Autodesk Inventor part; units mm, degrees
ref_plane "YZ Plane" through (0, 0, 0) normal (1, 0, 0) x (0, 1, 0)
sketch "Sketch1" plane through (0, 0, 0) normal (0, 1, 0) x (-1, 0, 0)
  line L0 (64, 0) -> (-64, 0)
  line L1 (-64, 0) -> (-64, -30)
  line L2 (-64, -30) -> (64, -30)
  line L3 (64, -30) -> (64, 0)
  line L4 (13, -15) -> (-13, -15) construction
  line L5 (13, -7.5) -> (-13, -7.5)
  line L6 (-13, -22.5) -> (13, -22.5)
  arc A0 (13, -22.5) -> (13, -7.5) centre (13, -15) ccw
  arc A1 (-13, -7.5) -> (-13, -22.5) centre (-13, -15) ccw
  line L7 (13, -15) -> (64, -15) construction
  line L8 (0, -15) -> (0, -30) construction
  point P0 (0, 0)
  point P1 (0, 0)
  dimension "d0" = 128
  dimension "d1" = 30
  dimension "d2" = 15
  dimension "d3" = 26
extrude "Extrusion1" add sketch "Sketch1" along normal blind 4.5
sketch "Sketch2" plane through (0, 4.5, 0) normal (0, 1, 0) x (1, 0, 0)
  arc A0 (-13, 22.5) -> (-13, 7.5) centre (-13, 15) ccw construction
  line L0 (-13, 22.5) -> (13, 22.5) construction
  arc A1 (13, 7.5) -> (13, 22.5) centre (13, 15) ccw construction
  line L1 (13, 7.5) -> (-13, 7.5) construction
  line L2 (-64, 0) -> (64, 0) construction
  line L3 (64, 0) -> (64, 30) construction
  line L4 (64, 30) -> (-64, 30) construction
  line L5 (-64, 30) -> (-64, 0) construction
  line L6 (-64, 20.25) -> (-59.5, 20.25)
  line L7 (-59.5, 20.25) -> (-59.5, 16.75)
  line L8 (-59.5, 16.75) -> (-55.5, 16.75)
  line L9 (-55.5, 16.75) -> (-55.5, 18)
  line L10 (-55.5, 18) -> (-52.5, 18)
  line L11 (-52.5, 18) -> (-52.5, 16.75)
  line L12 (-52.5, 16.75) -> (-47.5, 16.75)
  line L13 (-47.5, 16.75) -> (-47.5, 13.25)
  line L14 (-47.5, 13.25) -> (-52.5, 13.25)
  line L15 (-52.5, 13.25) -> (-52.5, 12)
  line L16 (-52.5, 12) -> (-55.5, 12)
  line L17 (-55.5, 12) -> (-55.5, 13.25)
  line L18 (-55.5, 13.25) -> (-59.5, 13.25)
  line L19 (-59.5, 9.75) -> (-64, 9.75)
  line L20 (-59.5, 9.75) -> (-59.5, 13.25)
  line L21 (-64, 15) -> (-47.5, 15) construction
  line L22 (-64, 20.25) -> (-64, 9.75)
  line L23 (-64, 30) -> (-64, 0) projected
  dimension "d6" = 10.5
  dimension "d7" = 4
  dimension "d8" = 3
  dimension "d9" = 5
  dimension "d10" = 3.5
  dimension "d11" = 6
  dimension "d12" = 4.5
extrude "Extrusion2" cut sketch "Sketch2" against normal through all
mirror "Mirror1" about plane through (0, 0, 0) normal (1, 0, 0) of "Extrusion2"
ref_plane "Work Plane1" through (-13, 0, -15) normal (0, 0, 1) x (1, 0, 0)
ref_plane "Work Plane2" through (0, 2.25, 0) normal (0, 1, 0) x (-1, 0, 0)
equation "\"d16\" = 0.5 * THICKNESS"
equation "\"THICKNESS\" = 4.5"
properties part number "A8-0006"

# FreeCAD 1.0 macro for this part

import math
import FreeCAD as App
import Part
import Sketcher

V = App.Vector
Q = App.Units.Quantity

doc = App.newDocument("Part")
body = doc.addObject("PartDesign::Body", "Body")

# Sketch on XZ plane
sketch1 = body.newObject("Sketcher::SketchObject", "Sketch")
sketch1.AttachmentSupport = (doc.getObject("XZ_Plane"), [""])
sketch1.MapMode = "FlatFace"
sketch1.addGeometry(Part.LineSegment(V(-64, -30, 0), V(-64, 0, 0)), False)
sketch1.addGeometry(Part.LineSegment(V(-64, 0, 0), V(64, 0, 0)), False)
sketch1.addGeometry(Part.LineSegment(V(64, 0, 0), V(64, -30, 0)), False)
sketch1.addGeometry(Part.LineSegment(V(64, -30, 0), V(-64, -30, 0)), False)
sketch1.addGeometry(Part.LineSegment(V(13, -8, 0), V(-13, -8, 0)), False)
sketch1.addGeometry(Part.ArcOfCircle(Part.Circle(V(-13, -15, 0), V(0, 0, 1), 8), math.radians(90), math.radians(270)), False)
sketch1.addGeometry(Part.LineSegment(V(-13, -22, 0), V(13, -22, 0)), False)
sketch1.addGeometry(Part.ArcOfCircle(Part.Circle(V(13, -15, 0), V(0, 0, 1), 8), math.radians(-90), math.radians(90)), False)
sketch1.addConstraint(Sketcher.Constraint("Coincident", 0, 2, 1, 1))
sketch1.addConstraint(Sketcher.Constraint("Coincident", 1, 2, 2, 1))
sketch1.addConstraint(Sketcher.Constraint("Coincident", 2, 2, 3, 1))
sketch1.addConstraint(Sketcher.Constraint("Coincident", 3, 2, 0, 1))
sketch1.addConstraint(Sketcher.Constraint("Tangent", 4, 2, 5, 1))
sketch1.addConstraint(Sketcher.Constraint("Tangent", 5, 2, 6, 1))
sketch1.addConstraint(Sketcher.Constraint("Tangent", 6, 2, 7, 1))
sketch1.addConstraint(Sketcher.Constraint("Tangent", 7, 2, 4, 1))
sketch1.addConstraint(Sketcher.Constraint("Vertical", 0))
sketch1.addConstraint(Sketcher.Constraint("Horizontal", 1))
sketch1.addConstraint(Sketcher.Constraint("Vertical", 2))
sketch1.addConstraint(Sketcher.Constraint("Horizontal", 3))
sketch1.addConstraint(Sketcher.Constraint("Horizontal", 4))
sketch1.addConstraint(Sketcher.Constraint("Horizontal", 6))
sketch1.addConstraint(Sketcher.Constraint("Symmetric", 0, 2, 1, 2, -1, 1))
sketch1.addConstraint(Sketcher.Constraint("Radius", 5, Q("7.5 mm")))
sketch1.addConstraint(Sketcher.Constraint("DistanceX", 1, 1, 1, 2, Q("128 mm")))
sketch1.addConstraint(Sketcher.Constraint("DistanceX", 4, 2, 4, 1, Q("26 mm")))
sketch1.addConstraint(Sketcher.Constraint("DistanceY", 0, 1, 0, 2, Q("30 mm")))
sketch1.addConstraint(Sketcher.Constraint("DistanceY", 5, 3, -1, 1, Q("15 mm")))
sketch1.addConstraint(Sketcher.Constraint("DistanceX", 5, 3, -1, 1, Q("13 mm")))
pad1 = body.newObject("PartDesign::Pad", "Pad")
pad1.Profile = sketch1
pad1.Length = 4.5
pad1.Reversed = True

# Sketch on XZ plane
sketch2 = body.newObject("Sketcher::SketchObject", "Sketch001")
sketch2.AttachmentSupport = (doc.getObject("XZ_Plane"), [""])
sketch2.MapMode = "FlatFace"
sketch2.AttachmentOffset = App.Placement(V(0, 0, -4.5), App.Rotation())
sketch2.addGeometry(Part.LineSegment(V(-59.5, -20.2, 0), V(-64, -20.2, 0)), False)
sketch2.addGeometry(Part.LineSegment(V(-64, -20.2, 0), V(-64, -9.8, 0)), False)
sketch2.addGeometry(Part.LineSegment(V(-64, -9.8, 0), V(-59.5, -9.8, 0)), False)
sketch2.addGeometry(Part.LineSegment(V(-59.5, -9.8, 0), V(-59.5, -13.2, 0)), False)
sketch2.addGeometry(Part.LineSegment(V(-59.5, -13.2, 0), V(-55.5, -13.2, 0)), False)
sketch2.addGeometry(Part.LineSegment(V(-55.5, -13.2, 0), V(-55.5, -12, 0)), False)
sketch2.addGeometry(Part.LineSegment(V(-55.5, -12, 0), V(-52.5, -12, 0)), False)
sketch2.addGeometry(Part.LineSegment(V(-52.5, -12, 0), V(-52.5, -13.2, 0)), False)
sketch2.addGeometry(Part.LineSegment(V(-52.5, -13.2, 0), V(-47.5, -13.2, 0)), False)
sketch2.addGeometry(Part.LineSegment(V(-47.5, -13.2, 0), V(-47.5, -16.8, 0)), False)
sketch2.addGeometry(Part.LineSegment(V(-47.5, -16.8, 0), V(-52.5, -16.8, 0)), False)
sketch2.addGeometry(Part.LineSegment(V(-52.5, -16.8, 0), V(-52.5, -18, 0)), False)
sketch2.addGeometry(Part.LineSegment(V(-52.5, -18, 0), V(-55.5, -18, 0)), False)
sketch2.addGeometry(Part.LineSegment(V(-55.5, -18, 0), V(-55.5, -16.8, 0)), False)
sketch2.addGeometry(Part.LineSegment(V(-55.5, -16.8, 0), V(-59.5, -16.8, 0)), False)
sketch2.addGeometry(Part.LineSegment(V(-59.5, -16.8, 0), V(-59.5, -20.2, 0)), False)
sketch2.addConstraint(Sketcher.Constraint("Coincident", 0, 2, 1, 1))
sketch2.addConstraint(Sketcher.Constraint("Coincident", 1, 2, 2, 1))
sketch2.addConstraint(Sketcher.Constraint("Coincident", 2, 2, 3, 1))
sketch2.addConstraint(Sketcher.Constraint("Coincident", 3, 2, 4, 1))
sketch2.addConstraint(Sketcher.Constraint("Coincident", 4, 2, 5, 1))
sketch2.addConstraint(Sketcher.Constraint("Coincident", 5, 2, 6, 1))
sketch2.addConstraint(Sketcher.Constraint("Coincident", 6, 2, 7, 1))
sketch2.addConstraint(Sketcher.Constraint("Coincident", 7, 2, 8, 1))
sketch2.addConstraint(Sketcher.Constraint("Coincident", 8, 2, 9, 1))
sketch2.addConstraint(Sketcher.Constraint("Coincident", 9, 2, 10, 1))
sketch2.addConstraint(Sketcher.Constraint("Coincident", 10, 2, 11, 1))
sketch2.addConstraint(Sketcher.Constraint("Coincident", 11, 2, 12, 1))
sketch2.addConstraint(Sketcher.Constraint("Coincident", 12, 2, 13, 1))
sketch2.addConstraint(Sketcher.Constraint("Coincident", 13, 2, 14, 1))
sketch2.addConstraint(Sketcher.Constraint("Coincident", 14, 2, 15, 1))
sketch2.addConstraint(Sketcher.Constraint("Coincident", 15, 2, 0, 1))
sketch2.addConstraint(Sketcher.Constraint("Horizontal", 0))
sketch2.addConstraint(Sketcher.Constraint("Vertical", 1))
sketch2.addConstraint(Sketcher.Constraint("Horizontal", 2))
sketch2.addConstraint(Sketcher.Constraint("Vertical", 3))
sketch2.addConstraint(Sketcher.Constraint("Horizontal", 4))
sketch2.addConstraint(Sketcher.Constraint("Vertical", 5))
sketch2.addConstraint(Sketcher.Constraint("Horizontal", 6))
sketch2.addConstraint(Sketcher.Constraint("Vertical", 7))
sketch2.addConstraint(Sketcher.Constraint("Horizontal", 8))
sketch2.addConstraint(Sketcher.Constraint("Vertical", 9))
sketch2.addConstraint(Sketcher.Constraint("Horizontal", 10))
sketch2.addConstraint(Sketcher.Constraint("Vertical", 11))
sketch2.addConstraint(Sketcher.Constraint("Horizontal", 12))
sketch2.addConstraint(Sketcher.Constraint("Vertical", 13))
sketch2.addConstraint(Sketcher.Constraint("Horizontal", 14))
sketch2.addConstraint(Sketcher.Constraint("Vertical", 15))
sketch2.addConstraint(Sketcher.Constraint("Horizontal", 4, 2, 7, 2))
sketch2.addConstraint(Sketcher.Constraint("Horizontal", 10, 2, 13, 2))
sketch2.addConstraint(Sketcher.Constraint("Vertical", 7, 2, 10, 2))
sketch2.addConstraint(Sketcher.Constraint("Vertical", 5, 2, 12, 2))
sketch2.addConstraint(Sketcher.Constraint("Vertical", 3, 2, 14, 2))
sketch2.addConstraint(Sketcher.Constraint("Equal", 3, 9))
sketch2.addConstraint(Sketcher.Constraint("Equal", 7, 11))
sketch2.addConstraint(Sketcher.Constraint("Equal", 9, 15))
sketch2.addConstraint(Sketcher.Constraint("DistanceX", 4, 1, 4, 2, Q("4 mm")))
sketch2.addConstraint(Sketcher.Constraint("DistanceX", 6, 1, 6, 2, Q("3 mm")))
sketch2.addConstraint(Sketcher.Constraint("DistanceX", 8, 1, 8, 2, Q("5 mm")))
sketch2.addConstraint(Sketcher.Constraint("DistanceX", 0, 2, 0, 1, Q("4.5 mm")))
sketch2.addConstraint(Sketcher.Constraint("DistanceY", 1, 1, 1, 2, Q("10.5 mm")))
sketch2.addConstraint(Sketcher.Constraint("DistanceY", 11, 2, 6, 2, Q("6 mm")))
sketch2.addConstraint(Sketcher.Constraint("DistanceX", 0, 2, -1, 1, Q("64 mm")))
sketch2.addConstraint(Sketcher.Constraint("DistanceY", 5, 2, -1, 1, Q("12 mm")))
pocket1 = body.newObject("PartDesign::Pocket", "Pocket")
pocket1.Profile = sketch2
pocket1.Type = "ThroughAll"
pocket1.Reversed = True
doc.recompute()

mirrored = body.newObject("PartDesign::Mirrored", "Mirrored")
mirrored.Originals = [pocket1]
mirrored.MirrorPlane = (doc.getObject("YZ_Plane"), [""])
body.Tip = mirrored

doc.recompute()
